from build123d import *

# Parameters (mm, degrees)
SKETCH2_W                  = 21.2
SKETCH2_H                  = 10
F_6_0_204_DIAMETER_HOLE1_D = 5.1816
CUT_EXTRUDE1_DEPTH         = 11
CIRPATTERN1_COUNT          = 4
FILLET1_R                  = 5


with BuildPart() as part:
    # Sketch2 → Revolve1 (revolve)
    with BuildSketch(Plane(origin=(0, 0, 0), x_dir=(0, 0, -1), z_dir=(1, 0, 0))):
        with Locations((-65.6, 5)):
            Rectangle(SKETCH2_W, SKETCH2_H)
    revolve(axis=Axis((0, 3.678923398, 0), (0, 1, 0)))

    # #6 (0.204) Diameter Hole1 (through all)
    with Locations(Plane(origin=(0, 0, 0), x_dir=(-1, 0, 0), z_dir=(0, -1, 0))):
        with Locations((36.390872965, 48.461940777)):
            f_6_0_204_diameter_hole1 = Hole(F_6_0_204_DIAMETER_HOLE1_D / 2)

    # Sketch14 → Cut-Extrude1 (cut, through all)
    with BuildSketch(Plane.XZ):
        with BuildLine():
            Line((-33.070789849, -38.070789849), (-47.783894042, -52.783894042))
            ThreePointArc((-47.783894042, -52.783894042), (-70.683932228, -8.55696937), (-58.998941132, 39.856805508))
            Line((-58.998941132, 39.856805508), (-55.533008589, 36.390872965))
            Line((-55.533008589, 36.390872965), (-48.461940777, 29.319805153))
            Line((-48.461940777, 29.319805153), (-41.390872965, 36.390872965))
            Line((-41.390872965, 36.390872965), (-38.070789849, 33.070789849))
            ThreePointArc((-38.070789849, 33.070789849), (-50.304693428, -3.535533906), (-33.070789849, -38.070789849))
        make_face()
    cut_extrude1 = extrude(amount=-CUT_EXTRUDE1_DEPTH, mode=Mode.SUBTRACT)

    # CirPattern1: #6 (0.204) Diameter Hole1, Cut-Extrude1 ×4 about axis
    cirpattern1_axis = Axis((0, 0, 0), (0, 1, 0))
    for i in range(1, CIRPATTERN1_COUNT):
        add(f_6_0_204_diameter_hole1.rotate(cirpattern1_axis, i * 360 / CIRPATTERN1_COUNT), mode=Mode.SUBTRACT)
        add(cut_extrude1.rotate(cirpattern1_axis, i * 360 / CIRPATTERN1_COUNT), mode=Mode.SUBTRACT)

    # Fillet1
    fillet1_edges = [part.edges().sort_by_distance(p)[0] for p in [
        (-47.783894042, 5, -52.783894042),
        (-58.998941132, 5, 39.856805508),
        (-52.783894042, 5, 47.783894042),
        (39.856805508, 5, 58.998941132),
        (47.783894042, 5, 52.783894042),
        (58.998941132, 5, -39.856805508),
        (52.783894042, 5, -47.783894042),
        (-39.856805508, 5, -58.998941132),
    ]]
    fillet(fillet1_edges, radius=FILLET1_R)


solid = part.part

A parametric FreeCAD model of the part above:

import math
import FreeCAD as App
import Part
import Sketcher

V = App.Vector
Q = App.Units.Quantity


def edges_at(feature, points):
    """Names of the edges that pass closest to the given points."""
    edges = feature.Shape.Edges
    near = lambda p: min(range(len(edges)), key=lambda i: edges[i].distToShape(Part.Vertex(*p))[0])
    return sorted({f"Edge{near(p) + 1}" for p in points})


def add_polygon(sketch, points):
    """Adds a closed chain of lines whose ends are joined by coincident constraints."""
    first, n = sketch.GeometryCount, len(points)
    for a, b in zip(points, points[1:] + points[:1]):
        sketch.addGeometry(Part.LineSegment(App.Vector(*a, 0), App.Vector(*b, 0)), False)
    for i in range(n):
        sketch.addConstraint(Sketcher.Constraint("Coincident", first + i, 2, first + (i + 1) % n, 1))

doc = App.newDocument("Part")
body = doc.addObject("PartDesign::Body", "Body")

sketch1 = body.newObject("Sketcher::SketchObject", "Sketch")
sketch1.AttachmentSupport = (doc.getObject("YZ_Plane"), [""])
sketch1.MapMode = "FlatFace"
add_polygon(sketch1, [(10, 76.2), (0, 76.2), (0, 55), (10, 55)])
sketch1.addConstraint([
    Sketcher.Constraint("Horizontal", 0),
    Sketcher.Constraint("Vertical", 1),
    Sketcher.Constraint("Horizontal", 2),
    Sketcher.Constraint("Vertical", 3),
    Sketcher.Constraint("PointOnObject", 0, 2, -2),
    Sketcher.Constraint("DistanceX", 0, 2, 0, 1, Q("10 mm")),
    Sketcher.Constraint("DistanceY", 1, 2, 1, 1, Q("21.2 mm")),
    Sketcher.Constraint("DistanceY", -1, 1, 1, 2, Q("55 mm")),
])
revolution = body.newObject("PartDesign::Revolution", "Revolution")
revolution.Profile = sketch1
revolution.ReferenceAxis = (sketch1, ["H_Axis"])
revolution.Angle = 360

sketch2 = body.newObject("Sketcher::SketchObject", "Sketch001")
sketch2.AttachmentSupport = (doc.getObject("XZ_Plane"), [""])
sketch2.MapMode = "FlatFace"
sketch2.addGeometry(Part.Circle(V(-36.390873, -48.461941, 0), V(0, 0, 1), 2.5908), False)
sketch2.addConstraint([
    Sketcher.Constraint("Diameter", 0, Q("5.1816 mm")),
    Sketcher.Constraint("DistanceY", 0, 3, -1, 1, Q("48.461941 mm")),
    Sketcher.Constraint("DistanceX", 0, 3, -1, 1, Q("36.390873 mm")),
])
doc.recompute()
hole = body.newObject("PartDesign::Hole", "Hole")
hole.Profile = sketch2
hole.ThreadType = "None"
hole.Diameter = 5.1816
hole.DepthType = "ThroughAll"

sketch3 = body.newObject("Sketcher::SketchObject", "Sketch002")
sketch3.AttachmentSupport = (doc.getObject("XZ_Plane"), [""])
sketch3.MapMode = "FlatFace"
sketch3.addGeometry([
    Part.LineSegment(V(-47.783894, -52.783894, 0), V(-33.07079, -38.07079, 0)),
    Part.ArcOfCircle(Part.Circle(V(0, 0, 0), V(0, 0, 1), 50.428783), math.radians(139.020273), math.radians(229.020273)),
    Part.LineSegment(V(-38.07079, 33.07079, 0), V(-41.390873, 36.390873, 0)),
    Part.LineSegment(V(-41.390873, 36.390873, 0), V(-48.461941, 29.319805, 0)),
    Part.LineSegment(V(-48.461941, 29.319805, 0), V(-58.998941, 39.856806, 0)),
    Part.ArcOfCircle(Part.Circle(V(0, 0, 0), V(0, 0, 1), 71.2), math.radians(145.958959), math.radians(227.846271)),
], False)
sketch3.addConstraint([
    Sketcher.Constraint("Coincident", 0, 2, 1, 2),
    Sketcher.Constraint("Coincident", 1, 1, 2, 1),
    Sketcher.Constraint("Coincident", 2, 2, 3, 1),
    Sketcher.Constraint("Coincident", 3, 2, 4, 1),
    Sketcher.Constraint("Coincident", 4, 2, 5, 1),
    Sketcher.Constraint("Coincident", 5, 2, 0, 1),
    Sketcher.Constraint("Coincident", 1, 3, -1, 1),
    Sketcher.Constraint("Coincident", 5, 3, -1, 1),
    Sketcher.Constraint("Perpendicular", 0, 2),
    Sketcher.Constraint("Perpendicular", 2, 3),
    Sketcher.Constraint("Perpendicular", 3, 4),
    Sketcher.Constraint("Radius", 5, Q("71.2 mm")),
    Sketcher.Constraint("Angle", 0, Q("45 deg")),
    Sketcher.Constraint("Distance", 3, Q("10 mm")),
    Sketcher.Constraint("DistanceX", 1, 1, 0, 2, Q("5 mm")),
    Sketcher.Constraint("Radius", 1, Q("50.428783 mm")),
    Sketcher.Constraint("DistanceX", 4, 2, 3, 2, Q("10.537 mm")),
    Sketcher.Constraint("DistanceY", 5, 2, 3, 2, Q("82.103699 mm")),
])
pocket1 = body.newObject("PartDesign::Pocket", "Pocket")
pocket1.Profile = sketch3
pocket1.Type = "ThroughAll"
doc.recompute()

polarpattern = body.newObject("PartDesign::PolarPattern", "PolarPattern")
polarpattern.Originals = [hole, pocket1]
polarpattern.Axis = (doc.getObject("Y_Axis"), [""])
polarpattern.Angle = 360
polarpattern.Occurrences = 4
body.Tip = polarpattern
doc.recompute()

fillet = body.newObject("PartDesign::Fillet", "Fillet")
fillet.Base = (polarpattern, edges_at(polarpattern, [
    (-47.784, 5, -52.784),
    (-58.999, 5, 39.857),
    (-52.784, 5, 47.784),
    (39.857, 5, 58.999),
    (47.784, 5, 52.784),
    (58.999, 5, -39.857),
    (52.784, 5, -47.784),
    (-39.857, 5, -58.999),
]))
fillet.Radius = 5

doc.recompute()
